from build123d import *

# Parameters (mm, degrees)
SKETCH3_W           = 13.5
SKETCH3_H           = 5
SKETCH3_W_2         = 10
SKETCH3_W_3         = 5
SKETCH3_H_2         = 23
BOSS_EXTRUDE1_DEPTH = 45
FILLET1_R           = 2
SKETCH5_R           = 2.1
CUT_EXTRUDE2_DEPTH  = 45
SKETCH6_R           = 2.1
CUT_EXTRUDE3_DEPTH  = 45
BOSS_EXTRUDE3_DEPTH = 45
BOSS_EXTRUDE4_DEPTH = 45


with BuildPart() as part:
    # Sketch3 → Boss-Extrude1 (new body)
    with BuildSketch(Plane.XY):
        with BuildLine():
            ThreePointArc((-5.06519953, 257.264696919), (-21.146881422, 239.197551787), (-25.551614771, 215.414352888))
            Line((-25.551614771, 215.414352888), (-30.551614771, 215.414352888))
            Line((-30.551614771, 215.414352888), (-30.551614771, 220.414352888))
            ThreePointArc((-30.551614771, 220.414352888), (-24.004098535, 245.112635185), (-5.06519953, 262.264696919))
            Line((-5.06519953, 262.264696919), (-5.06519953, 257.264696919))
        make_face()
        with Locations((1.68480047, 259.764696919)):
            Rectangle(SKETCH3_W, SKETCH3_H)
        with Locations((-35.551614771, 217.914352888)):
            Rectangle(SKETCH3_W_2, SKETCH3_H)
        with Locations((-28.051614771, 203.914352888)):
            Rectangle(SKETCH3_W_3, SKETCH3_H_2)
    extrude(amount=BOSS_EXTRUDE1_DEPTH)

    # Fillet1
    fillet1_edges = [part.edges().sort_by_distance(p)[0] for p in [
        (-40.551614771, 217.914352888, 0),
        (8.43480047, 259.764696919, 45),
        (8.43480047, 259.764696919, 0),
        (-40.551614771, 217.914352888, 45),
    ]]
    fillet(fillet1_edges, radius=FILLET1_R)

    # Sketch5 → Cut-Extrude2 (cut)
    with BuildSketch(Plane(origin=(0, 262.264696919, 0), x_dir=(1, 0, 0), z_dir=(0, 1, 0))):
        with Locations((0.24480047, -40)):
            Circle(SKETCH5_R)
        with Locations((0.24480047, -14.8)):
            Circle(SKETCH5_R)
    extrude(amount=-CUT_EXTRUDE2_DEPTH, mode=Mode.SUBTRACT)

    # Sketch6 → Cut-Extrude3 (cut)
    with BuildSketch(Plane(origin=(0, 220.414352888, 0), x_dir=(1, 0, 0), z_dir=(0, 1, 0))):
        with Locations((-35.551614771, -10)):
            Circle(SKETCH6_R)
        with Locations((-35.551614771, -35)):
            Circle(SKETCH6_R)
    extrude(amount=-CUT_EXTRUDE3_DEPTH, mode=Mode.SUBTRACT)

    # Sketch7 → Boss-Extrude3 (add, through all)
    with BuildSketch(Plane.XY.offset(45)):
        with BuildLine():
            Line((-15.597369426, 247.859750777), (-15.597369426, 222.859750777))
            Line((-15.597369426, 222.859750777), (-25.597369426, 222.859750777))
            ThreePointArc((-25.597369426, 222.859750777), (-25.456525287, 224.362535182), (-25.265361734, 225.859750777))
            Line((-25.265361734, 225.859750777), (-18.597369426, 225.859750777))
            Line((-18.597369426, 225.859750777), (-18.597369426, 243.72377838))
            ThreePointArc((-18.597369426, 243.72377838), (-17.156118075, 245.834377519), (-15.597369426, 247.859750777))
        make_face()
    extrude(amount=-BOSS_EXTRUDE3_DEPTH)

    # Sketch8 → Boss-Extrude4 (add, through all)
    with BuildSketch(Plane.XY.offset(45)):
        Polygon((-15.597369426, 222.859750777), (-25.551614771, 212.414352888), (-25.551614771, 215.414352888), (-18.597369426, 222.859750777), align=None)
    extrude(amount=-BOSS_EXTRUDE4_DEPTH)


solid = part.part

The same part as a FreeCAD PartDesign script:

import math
import FreeCAD as App
import Part
import Sketcher
from FreeCAD import Vector
Q = App.Units.Quantity


def edges_at(feature, points):
    """Names of the edges that pass closest to the given points."""
    edges = feature.Shape.Edges
    near = lambda p: min(range(len(edges)), key=lambda i: edges[i].distToShape(Part.Vertex(*p))[0])
    return sorted({f"Edge{near(p) + 1}" for p in points})

doc = App.newDocument("Part")
body = doc.addObject("PartDesign::Body", "Body")

sketch1 = body.newObject("Sketcher::SketchObject", "Sketch")
sketch1.AttachmentSupport = (doc.getObject("XY_Plane"), [""])
sketch1.MapMode = "FlatFace"
sketch1.addGeometry([
    Part.ArcOfCircle(Part.Circle(Vector(19.270408, 219.41264, 0), Vector(0, 0, 1), 45), math.radians(122.73752), math.radians(185.097499)),
    Part.LineSegment(Vector(-5.0652, 257.264697, 0), Vector(8.4348, 257.264697, 0)),
    Part.LineSegment(Vector(8.4348, 257.264697, 0), Vector(8.4348, 262.264697, 0)),
    Part.LineSegment(Vector(8.4348, 262.264697, 0), Vector(-5.0652, 262.264697, 0)),
    Part.ArcOfCircle(Part.Circle(Vector(14.429822, 221.706786, 0), Vector(0, 0, 1), 45), math.radians(115.672255), math.radians(181.645803)),
    Part.LineSegment(Vector(-30.551615, 220.414353, 0), Vector(-40.551615, 220.414353, 0)),
    Part.LineSegment(Vector(-40.551615, 220.414353, 0), Vector(-40.551615, 215.414353, 0)),
    Part.LineSegment(Vector(-40.551615, 215.414353, 0), Vector(-30.551615, 215.414353, 0)),
    Part.LineSegment(Vector(-30.551615, 215.414353, 0), Vector(-30.551615, 192.414353, 0)),
    Part.LineSegment(Vector(-30.551615, 192.414353, 0), Vector(-25.551615, 192.414353, 0)),
    Part.LineSegment(Vector(-25.551615, 192.414353, 0), Vector(-25.551615, 215.414353, 0)),
], False)
sketch1.addConstraint([
    Sketcher.Constraint("Coincident", 0, 1, 1, 1),
    Sketcher.Constraint("Coincident", 1, 2, 2, 1),
    Sketcher.Constraint("Coincident", 2, 2, 3, 1),
    Sketcher.Constraint("Coincident", 3, 2, 4, 1),
    Sketcher.Constraint("Coincident", 4, 2, 5, 1),
    Sketcher.Constraint("Coincident", 5, 2, 6, 1),
    Sketcher.Constraint("Coincident", 6, 2, 7, 1),
    Sketcher.Constraint("Coincident", 7, 2, 8, 1),
    Sketcher.Constraint("Coincident", 8, 2, 9, 1),
    Sketcher.Constraint("Coincident", 9, 2, 10, 1),
    Sketcher.Constraint("Coincident", 10, 2, 0, 2),
    Sketcher.Constraint("Horizontal", 1),
    Sketcher.Constraint("Vertical", 2),
    Sketcher.Constraint("Horizontal", 3),
    Sketcher.Constraint("Horizontal", 5),
    Sketcher.Constraint("Vertical", 6),
    Sketcher.Constraint("Horizontal", 7),
    Sketcher.Constraint("Vertical", 8),
    Sketcher.Constraint("Horizontal", 9),
    Sketcher.Constraint("Vertical", 10),
    Sketcher.Constraint("Equal", 0, 4),
    Sketcher.Constraint("Horizontal", 7, 2, 10, 2),
    Sketcher.Constraint("Vertical", 0, 1, 3, 2),
    Sketcher.Constraint("Vertical", 4, 2, 7, 2),
    Sketcher.Constraint("Equal", 9, 2),
    Sketcher.Constraint("Equal", 2, 6),
    Sketcher.Constraint("Radius", 0, Q("45 mm")),
    Sketcher.Constraint("DistanceX", 5, 2, 5, 1, Q("10 mm")),
    Sketcher.Constraint("DistanceX", 9, 1, 9, 2, Q("5 mm")),
    Sketcher.Constraint("DistanceY", 8, 2, 8, 1, Q("23 mm")),
    Sketcher.Constraint("DistanceX", 1, 1, 1, 2, Q("13.5 mm")),
    Sketcher.Constraint("DistanceX", 0, 1, -1, 1, Q("5.0652 mm")),
    Sketcher.Constraint("DistanceY", -1, 1, 0, 3, Q("219.41264 mm")),
    Sketcher.Constraint("DistanceX", -1, 1, 4, 3, Q("14.429822 mm")),
    Sketcher.Constraint("DistanceX", -1, 1, 0, 3, Q("19.270408 mm")),
])
pad1 = body.newObject("PartDesign::Pad", "Pad")
pad1.Profile = sketch1
pad1.Length = 45
doc.recompute()

fillet = body.newObject("PartDesign::Fillet", "Fillet")
fillet.Base = (pad1, edges_at(pad1, [
    (-40.552, 217.914, 0),
    (8.435, 259.765, 45),
    (8.435, 259.765, 0),
    (-40.552, 217.914, 45),
]))
fillet.Radius = 2

sketch2 = body.newObject("Sketcher::SketchObject", "Sketch001")
sketch2.AttachmentSupport = (doc.getObject("XZ_Plane"), [""])
sketch2.MapMode = "FlatFace"
sketch2.AttachmentOffset = App.Placement(Vector(0, 0, -262.264697), App.Rotation())
sketch2.addGeometry([
    Part.Circle(Vector(0.2448, 40, 0), Vector(0, 0, 1), 2.1),
    Part.Circle(Vector(0.2448, 14.8, 0), Vector(0, 0, 1), 2.1),
], False)
sketch2.addConstraint([
    Sketcher.Constraint("Equal", 0, 1),
    Sketcher.Constraint("Vertical", 0, 3, 1, 3),
    Sketcher.Constraint("Diameter", 0, Q("4.2 mm")),
    Sketcher.Constraint("DistanceY", -1, 1, 0, 3, Q("40 mm")),
    Sketcher.Constraint("DistanceY", -1, 1, 1, 3, Q("14.8 mm")),
    Sketcher.Constraint("DistanceX", -1, 1, 0, 3, Q("0.2448 mm")),
])
pocket1 = body.newObject("PartDesign::Pocket", "Pocket")
pocket1.Profile = sketch2
pocket1.Length = 45
pocket1.Reversed = True

sketch3 = body.newObject("Sketcher::SketchObject", "Sketch002")
sketch3.AttachmentSupport = (doc.getObject("XZ_Plane"), [""])
sketch3.MapMode = "FlatFace"
sketch3.AttachmentOffset = App.Placement(Vector(0, 0, -220.414353), App.Rotation())
sketch3.addGeometry([
    Part.Circle(Vector(-35.551615, 10, 0), Vector(0, 0, 1), 2.1),
    Part.Circle(Vector(-35.551615, 35, 0), Vector(0, 0, 1), 2.1),
], False)
sketch3.addConstraint([
    Sketcher.Constraint("Equal", 0, 1),
    Sketcher.Constraint("Vertical", 0, 3, 1, 3),
    Sketcher.Constraint("Diameter", 0, Q("4.2 mm")),
    Sketcher.Constraint("DistanceY", -1, 1, 0, 3, Q("10 mm")),
    Sketcher.Constraint("DistanceY", -1, 1, 1, 3, Q("35 mm")),
    Sketcher.Constraint("DistanceX", 0, 3, -1, 1, Q("35.551615 mm")),
])
pocket2 = body.newObject("PartDesign::Pocket", "Pocket001")
pocket2.Profile = sketch3
pocket2.Length = 45
pocket2.Reversed = True

sketch4 = body.newObject("Sketcher::SketchObject", "Sketch003")
sketch4.AttachmentSupport = (doc.getObject("XY_Plane"), [""])
sketch4.MapMode = "FlatFace"
sketch4.AttachmentOffset = App.Placement(Vector(0, 0, 45), App.Rotation())
sketch4.addGeometry([
    Part.LineSegment(Vector(-15.597369, 222.859751, 0), Vector(-15.597369, 247.859751, 0)),
    Part.ArcOfCircle(Part.Circle(Vector(19.270408, 219.41264, 0), Vector(0, 0, 1), 45), math.radians(140.790483), math.radians(147.29951)),
    Part.LineSegment(Vector(-18.597369, 243.723778, 0), Vector(-18.597369, 225.859751, 0)),
    Part.LineSegment(Vector(-18.597369, 225.859751, 0), Vector(-25.265362, 225.859751, 0)),
    Part.ArcOfCircle(Part.Circle(Vector(19.270407, 219.41264, 0), Vector(0, 0, 1), 44.999999), math.radians(171.762939), math.radians(175.606698)),
    Part.LineSegment(Vector(-25.597369, 222.859751, 0), Vector(-15.597369, 222.859751, 0)),
], False)
sketch4.addConstraint([
    Sketcher.Constraint("Coincident", 0, 2, 1, 1),
    Sketcher.Constraint("Coincident", 1, 2, 2, 1),
    Sketcher.Constraint("Coincident", 2, 2, 3, 1),
    Sketcher.Constraint("Coincident", 3, 2, 4, 1),
    Sketcher.Constraint("Coincident", 4, 2, 5, 1),
    Sketcher.Constraint("Coincident", 5, 2, 0, 1),
    Sketcher.Constraint("Vertical", 0),
    Sketcher.Constraint("Vertical", 2),
    Sketcher.Constraint("Horizontal", 3),
    Sketcher.Constraint("Horizontal", 5),
    Sketcher.Constraint("Coincident", 4, 3, 1, 3),
    Sketcher.Constraint("Equal", 1, 4),
    Sketcher.Constraint("Radius", 1, Q("45 mm")),
    Sketcher.Constraint("DistanceX", 5, 1, 5, 2, Q("10 mm")),
    Sketcher.Constraint("DistanceY", 0, 1, 0, 2, Q("25 mm")),
    Sketcher.Constraint("DistanceX", 1, 2, 0, 2, Q("3 mm")),
    Sketcher.Constraint("DistanceY", 2, 2, 0, 2, Q("22 mm")),
    Sketcher.Constraint("DistanceY", -1, 1, 1, 3, Q("219.41264 mm")),
    Sketcher.Constraint("DistanceX", 0, 2, -1, 1, Q("15.597369 mm")),
])
pad2 = body.newObject("PartDesign::Pad", "Pad001")
pad2.Profile = sketch4
pad2.Length = 45
pad2.Reversed = True

sketch5 = body.newObject("Sketcher::SketchObject", "Sketch004")
sketch5.AttachmentSupport = (doc.getObject("XY_Plane"), [""])
sketch5.MapMode = "FlatFace"
sketch5.AttachmentOffset = App.Placement(Vector(0, 0, 45), App.Rotation())
sketch5.addGeometry([
    Part.LineSegment(Vector(-25.551615, 212.414353, 0), Vector(-15.597369, 222.859751, 0)),
    Part.LineSegment(Vector(-15.597369, 222.859751, 0), Vector(-18.597369, 222.859751, 0)),
    Part.LineSegment(Vector(-18.597369, 222.859751, 0), Vector(-25.551615, 215.414353, 0)),
    Part.LineSegment(Vector(-25.551615, 215.414353, 0), Vector(-25.551615, 212.414353, 0)),
], False)
sketch5.addConstraint([
    Sketcher.Constraint("Coincident", 0, 2, 1, 1),
    Sketcher.Constraint("Coincident", 1, 2, 2, 1),
    Sketcher.Constraint("Coincident", 2, 2, 3, 1),
    Sketcher.Constraint("Coincident", 3, 2, 0, 1),
    Sketcher.Constraint("Horizontal", 1),
    Sketcher.Constraint("Vertical", 3),
    Sketcher.Constraint("Equal", 1, 3),
    Sketcher.Constraint("DistanceX", 1, 2, 1, 1, Q("3 mm")),
    Sketcher.Constraint("DistanceX", 0, 2, -1, 1, Q("15.597369 mm")),
    Sketcher.Constraint("DistanceY", -1, 1, 0, 2, Q("222.859751 mm")),
    Sketcher.Constraint("Distance", 0, Q("14.428906 mm")),
    Sketcher.Constraint("Distance", 2, Q("10.188007 mm")),
])
pad3 = body.newObject("PartDesign::Pad", "Pad002")
pad3.Profile = sketch5
pad3.Length = 45
pad3.Reversed = True

doc.recompute()
